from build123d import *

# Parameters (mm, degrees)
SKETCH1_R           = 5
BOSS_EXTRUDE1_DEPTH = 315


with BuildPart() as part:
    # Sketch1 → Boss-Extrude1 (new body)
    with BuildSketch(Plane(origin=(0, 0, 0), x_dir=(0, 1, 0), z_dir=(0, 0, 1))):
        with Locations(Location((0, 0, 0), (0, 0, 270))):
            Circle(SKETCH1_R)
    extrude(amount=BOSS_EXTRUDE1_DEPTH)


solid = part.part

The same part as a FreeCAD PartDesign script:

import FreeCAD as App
import Part
import Sketcher
from FreeCAD import Vector

doc = App.newDocument("Part")
params = doc.addObject("Spreadsheet::Sheet", "Params")
for row, (alias, value) in enumerate([
    ("sketch1_diameter", "10 mm"),
    ("pad1_length", "315 mm"),
], start=1):
    params.set(f"A{row}", alias)
    params.set(f"B{row}", "=" + value)
    params.setAlias(f"B{row}", alias)

body = doc.addObject("PartDesign::Body", "Body")

sketch1 = body.newObject("Sketcher::SketchObject", "Sketch")
sketch1.AttachmentSupport = (doc.getObject("XY_Plane"), [""])
sketch1.MapMode = "FlatFace"
sketch1.addGeometry(Part.Circle(Vector(0, 0, 0), Vector(0, 0, 1), 5), False)
sketch1.addConstraint(Sketcher.Constraint("Coincident", 0, 3, -1, 1))
sketch1.addConstraint(Sketcher.Constraint("Diameter", 0, 10.0))
sketch1.setExpression("Constraints[1]", "Params.sketch1_diameter")
pad1 = body.newObject("PartDesign::Pad", "Pad")
pad1.Profile = sketch1
pad1.setExpression("Length", "Params.pad1_length")

doc.recompute()
